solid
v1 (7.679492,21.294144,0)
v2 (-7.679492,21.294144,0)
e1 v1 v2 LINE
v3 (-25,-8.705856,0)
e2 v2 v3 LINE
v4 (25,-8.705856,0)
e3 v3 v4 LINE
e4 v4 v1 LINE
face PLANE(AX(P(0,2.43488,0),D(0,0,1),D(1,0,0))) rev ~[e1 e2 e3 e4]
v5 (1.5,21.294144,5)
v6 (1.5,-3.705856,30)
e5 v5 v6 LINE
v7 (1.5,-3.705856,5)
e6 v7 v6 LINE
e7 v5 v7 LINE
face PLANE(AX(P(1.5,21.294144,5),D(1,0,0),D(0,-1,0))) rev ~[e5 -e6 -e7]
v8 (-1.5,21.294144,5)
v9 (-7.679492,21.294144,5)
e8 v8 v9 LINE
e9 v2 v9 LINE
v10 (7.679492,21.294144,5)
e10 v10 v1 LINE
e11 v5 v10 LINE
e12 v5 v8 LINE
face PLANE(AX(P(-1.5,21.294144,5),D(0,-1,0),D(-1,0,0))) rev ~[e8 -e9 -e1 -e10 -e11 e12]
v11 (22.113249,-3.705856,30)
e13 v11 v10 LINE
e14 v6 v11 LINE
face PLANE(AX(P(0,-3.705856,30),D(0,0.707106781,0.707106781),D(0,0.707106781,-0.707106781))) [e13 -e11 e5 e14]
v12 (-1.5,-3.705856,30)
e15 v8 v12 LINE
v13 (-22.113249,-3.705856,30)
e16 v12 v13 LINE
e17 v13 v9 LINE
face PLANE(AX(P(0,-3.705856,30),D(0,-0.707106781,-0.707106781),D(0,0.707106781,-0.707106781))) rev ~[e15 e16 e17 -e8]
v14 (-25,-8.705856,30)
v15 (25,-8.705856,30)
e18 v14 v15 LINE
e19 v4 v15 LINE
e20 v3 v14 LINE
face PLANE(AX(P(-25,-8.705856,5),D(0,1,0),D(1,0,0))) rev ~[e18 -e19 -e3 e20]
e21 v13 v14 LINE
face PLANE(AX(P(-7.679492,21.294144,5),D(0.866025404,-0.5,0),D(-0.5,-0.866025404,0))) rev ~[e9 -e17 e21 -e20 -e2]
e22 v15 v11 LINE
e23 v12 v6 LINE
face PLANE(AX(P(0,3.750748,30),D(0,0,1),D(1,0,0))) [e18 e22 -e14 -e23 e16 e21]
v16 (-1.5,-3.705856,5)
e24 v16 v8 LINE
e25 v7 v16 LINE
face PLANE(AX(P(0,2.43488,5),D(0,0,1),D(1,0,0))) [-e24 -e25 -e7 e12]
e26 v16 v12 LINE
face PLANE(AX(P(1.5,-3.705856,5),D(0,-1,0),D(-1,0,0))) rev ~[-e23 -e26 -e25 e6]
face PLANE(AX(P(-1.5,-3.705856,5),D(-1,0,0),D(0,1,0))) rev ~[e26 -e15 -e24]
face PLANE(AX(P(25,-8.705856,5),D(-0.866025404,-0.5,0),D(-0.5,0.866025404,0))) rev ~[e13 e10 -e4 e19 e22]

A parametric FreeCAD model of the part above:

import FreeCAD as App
import Part
import Sketcher
Q = App.Units.Quantity

doc = App.newDocument("Part")
body = doc.addObject("PartDesign::Body", "Body")

# Sketch on XY plane
sketch1 = doc.addObject("Sketcher::SketchObject", "Sketch")
body.addObject(sketch1)
sketch1.AttachmentSupport = (doc.XY_Plane, [""])
sketch1.MapMode = "FlatFace"
sketch1.addGeometry(Part.LineSegment(App.Vector(8, 21, 0), App.Vector(-8, 21, 0)), False)
sketch1.addGeometry(Part.LineSegment(App.Vector(-8, 21, 0), App.Vector(-25, -9, 0)), False)
sketch1.addGeometry(Part.LineSegment(App.Vector(-25, -9, 0), App.Vector(25, -9, 0)), False)
sketch1.addGeometry(Part.LineSegment(App.Vector(25, -9, 0), App.Vector(8, 21, 0)), False)
sketch1.addConstraint(Sketcher.Constraint("Coincident", 0, 2, 1, 1))
sketch1.addConstraint(Sketcher.Constraint("Coincident", 1, 2, 2, 1))
sketch1.addConstraint(Sketcher.Constraint("Coincident", 2, 2, 3, 1))
sketch1.addConstraint(Sketcher.Constraint("Coincident", 3, 2, 0, 1))
sketch1.addConstraint(Sketcher.Constraint("Horizontal", 0))
sketch1.addConstraint(Sketcher.Constraint("Horizontal", 2))
sketch1.addConstraint(Sketcher.Constraint("Equal", 1, 3))
sketch1.addConstraint(Sketcher.Constraint("DistanceX", 2, 1, 2, 2, 50.0))
sketch1.addConstraint(Sketcher.Constraint("Angle", 1, Q("-120 deg")))
sketch1.addConstraint(Sketcher.Constraint("DistanceX", 1, 2, -1, 1, 25.0))
sketch1.addConstraint(Sketcher.Constraint("DistanceY", 1, 2, 0, 2, 30.0))
sketch1.addConstraint(Sketcher.Constraint("DistanceY", -1, 1, 0, 2, 21.294144))
pad1 = doc.addObject("PartDesign::Pad", "Pad")
body.addObject(pad1)
pad1.Profile = sketch1
pad1.Length = 5

# Sketch on XY plane
sketch2 = doc.addObject("Sketcher::SketchObject", "Sketch001")
body.addObject(sketch2)
sketch2.AttachmentSupport = (doc.XY_Plane, [""])
sketch2.MapMode = "FlatFace"
sketch2.AttachmentOffset = App.Placement(App.Vector(0, 0, 5), App.Rotation())
sketch2.addGeometry(Part.LineSegment(App.Vector(-1.5, -3.7, 0), App.Vector(-1.5, 21.3, 0)), False)
sketch2.addGeometry(Part.LineSegment(App.Vector(-1.5, 21.3, 0), App.Vector(-7.7, 21.3, 0)), False)
sketch2.addGeometry(Part.LineSegment(App.Vector(-7.7, 21.3, 0), App.Vector(-25, -8.7, 0)), False)
sketch2.addGeometry(Part.LineSegment(App.Vector(-25, -8.7, 0), App.Vector(25, -8.7, 0)), False)
sketch2.addGeometry(Part.LineSegment(App.Vector(25, -8.7, 0), App.Vector(7.7, 21.3, 0)), False)
sketch2.addGeometry(Part.LineSegment(App.Vector(7.7, 21.3, 0), App.Vector(1.5, 21.3, 0)), False)
sketch2.addGeometry(Part.LineSegment(App.Vector(1.5, 21.3, 0), App.Vector(1.5, -3.7, 0)), False)
sketch2.addGeometry(Part.LineSegment(App.Vector(1.5, -3.7, 0), App.Vector(-1.5, -3.7, 0)), False)
sketch2.addConstraint(Sketcher.Constraint("Coincident", 0, 2, 1, 1))
sketch2.addConstraint(Sketcher.Constraint("Coincident", 1, 2, 2, 1))
sketch2.addConstraint(Sketcher.Constraint("Coincident", 2, 2, 3, 1))
sketch2.addConstraint(Sketcher.Constraint("Coincident", 3, 2, 4, 1))
sketch2.addConstraint(Sketcher.Constraint("Coincident", 4, 2, 5, 1))
sketch2.addConstraint(Sketcher.Constraint("Coincident", 5, 2, 6, 1))
sketch2.addConstraint(Sketcher.Constraint("Coincident", 6, 2, 7, 1))
sketch2.addConstraint(Sketcher.Constraint("Coincident", 7, 2, 0, 1))
sketch2.addConstraint(Sketcher.Constraint("Vertical", 0))
sketch2.addConstraint(Sketcher.Constraint("Horizontal", 1))
sketch2.addConstraint(Sketcher.Constraint("Horizontal", 3))
sketch2.addConstraint(Sketcher.Constraint("Horizontal", 5))
sketch2.addConstraint(Sketcher.Constraint("Vertical", 6))
sketch2.addConstraint(Sketcher.Constraint("Horizontal", 7))
sketch2.addConstraint(Sketcher.Constraint("Symmetric", 1, 2, 4, 2, -2))
sketch2.addConstraint(Sketcher.Constraint("Equal", 1, 5))
sketch2.addConstraint(Sketcher.Constraint("Equal", 2, 4))
sketch2.addConstraint(Sketcher.Constraint("DistanceX", 3, 1, 3, 2, 50.0))
sketch2.addConstraint(Sketcher.Constraint("DistanceX", 7, 2, 7, 1, 3.0))
sketch2.addConstraint(Sketcher.Constraint("DistanceY", 0, 1, 0, 2, 25.0))
sketch2.addConstraint(Sketcher.Constraint("Angle", 2, Q("-120 deg")))
sketch2.addConstraint(Sketcher.Constraint("DistanceY", 2, 2, 1, 2, 30.0))
sketch2.addConstraint(Sketcher.Constraint("DistanceY", -1, 1, 0, 2, 21.294144))
pad2 = doc.addObject("PartDesign::Pad", "Pad001")
body.addObject(pad2)
pad2.Profile = sketch2
pad2.Length = 25

# Sketch on YZ plane
sketch3 = doc.addObject("Sketcher::SketchObject", "Sketch002")
body.addObject(sketch3)
sketch3.AttachmentSupport = (doc.YZ_Plane, [""])
sketch3.MapMode = "FlatFace"
sketch3.addGeometry(Part.LineSegment(App.Vector(-4, 30, 0), App.Vector(21, 5, 0)), False)
sketch3.addGeometry(Part.LineSegment(App.Vector(21, 5, 0), App.Vector(21, 30, 0)), False)
sketch3.addGeometry(Part.LineSegment(App.Vector(21, 30, 0), App.Vector(-4, 30, 0)), False)
sketch3.addConstraint(Sketcher.Constraint("Coincident", 0, 2, 1, 1))
sketch3.addConstraint(Sketcher.Constraint("Coincident", 1, 2, 2, 1))
sketch3.addConstraint(Sketcher.Constraint("Coincident", 2, 2, 0, 1))
sketch3.addConstraint(Sketcher.Constraint("Vertical", 1))
sketch3.addConstraint(Sketcher.Constraint("Horizontal", 2))
sketch3.addConstraint(Sketcher.Constraint("Equal", 2, 1))
sketch3.addConstraint(Sketcher.Constraint("DistanceX", 2, 2, 2, 1, 25.0))
sketch3.addConstraint(Sketcher.Constraint("DistanceY", -1, 1, 0, 2, 5.0))
sketch3.addConstraint(Sketcher.Constraint("DistanceX", -1, 1, 0, 2, 21.294144))
pocket1 = doc.addObject("PartDesign::Pocket", "Pocket")
body.addObject(pocket1)
pocket1.Profile = sketch3
pocket1.Type = "ThroughAll"
pocket1.Midplane = True

doc.recompute()
